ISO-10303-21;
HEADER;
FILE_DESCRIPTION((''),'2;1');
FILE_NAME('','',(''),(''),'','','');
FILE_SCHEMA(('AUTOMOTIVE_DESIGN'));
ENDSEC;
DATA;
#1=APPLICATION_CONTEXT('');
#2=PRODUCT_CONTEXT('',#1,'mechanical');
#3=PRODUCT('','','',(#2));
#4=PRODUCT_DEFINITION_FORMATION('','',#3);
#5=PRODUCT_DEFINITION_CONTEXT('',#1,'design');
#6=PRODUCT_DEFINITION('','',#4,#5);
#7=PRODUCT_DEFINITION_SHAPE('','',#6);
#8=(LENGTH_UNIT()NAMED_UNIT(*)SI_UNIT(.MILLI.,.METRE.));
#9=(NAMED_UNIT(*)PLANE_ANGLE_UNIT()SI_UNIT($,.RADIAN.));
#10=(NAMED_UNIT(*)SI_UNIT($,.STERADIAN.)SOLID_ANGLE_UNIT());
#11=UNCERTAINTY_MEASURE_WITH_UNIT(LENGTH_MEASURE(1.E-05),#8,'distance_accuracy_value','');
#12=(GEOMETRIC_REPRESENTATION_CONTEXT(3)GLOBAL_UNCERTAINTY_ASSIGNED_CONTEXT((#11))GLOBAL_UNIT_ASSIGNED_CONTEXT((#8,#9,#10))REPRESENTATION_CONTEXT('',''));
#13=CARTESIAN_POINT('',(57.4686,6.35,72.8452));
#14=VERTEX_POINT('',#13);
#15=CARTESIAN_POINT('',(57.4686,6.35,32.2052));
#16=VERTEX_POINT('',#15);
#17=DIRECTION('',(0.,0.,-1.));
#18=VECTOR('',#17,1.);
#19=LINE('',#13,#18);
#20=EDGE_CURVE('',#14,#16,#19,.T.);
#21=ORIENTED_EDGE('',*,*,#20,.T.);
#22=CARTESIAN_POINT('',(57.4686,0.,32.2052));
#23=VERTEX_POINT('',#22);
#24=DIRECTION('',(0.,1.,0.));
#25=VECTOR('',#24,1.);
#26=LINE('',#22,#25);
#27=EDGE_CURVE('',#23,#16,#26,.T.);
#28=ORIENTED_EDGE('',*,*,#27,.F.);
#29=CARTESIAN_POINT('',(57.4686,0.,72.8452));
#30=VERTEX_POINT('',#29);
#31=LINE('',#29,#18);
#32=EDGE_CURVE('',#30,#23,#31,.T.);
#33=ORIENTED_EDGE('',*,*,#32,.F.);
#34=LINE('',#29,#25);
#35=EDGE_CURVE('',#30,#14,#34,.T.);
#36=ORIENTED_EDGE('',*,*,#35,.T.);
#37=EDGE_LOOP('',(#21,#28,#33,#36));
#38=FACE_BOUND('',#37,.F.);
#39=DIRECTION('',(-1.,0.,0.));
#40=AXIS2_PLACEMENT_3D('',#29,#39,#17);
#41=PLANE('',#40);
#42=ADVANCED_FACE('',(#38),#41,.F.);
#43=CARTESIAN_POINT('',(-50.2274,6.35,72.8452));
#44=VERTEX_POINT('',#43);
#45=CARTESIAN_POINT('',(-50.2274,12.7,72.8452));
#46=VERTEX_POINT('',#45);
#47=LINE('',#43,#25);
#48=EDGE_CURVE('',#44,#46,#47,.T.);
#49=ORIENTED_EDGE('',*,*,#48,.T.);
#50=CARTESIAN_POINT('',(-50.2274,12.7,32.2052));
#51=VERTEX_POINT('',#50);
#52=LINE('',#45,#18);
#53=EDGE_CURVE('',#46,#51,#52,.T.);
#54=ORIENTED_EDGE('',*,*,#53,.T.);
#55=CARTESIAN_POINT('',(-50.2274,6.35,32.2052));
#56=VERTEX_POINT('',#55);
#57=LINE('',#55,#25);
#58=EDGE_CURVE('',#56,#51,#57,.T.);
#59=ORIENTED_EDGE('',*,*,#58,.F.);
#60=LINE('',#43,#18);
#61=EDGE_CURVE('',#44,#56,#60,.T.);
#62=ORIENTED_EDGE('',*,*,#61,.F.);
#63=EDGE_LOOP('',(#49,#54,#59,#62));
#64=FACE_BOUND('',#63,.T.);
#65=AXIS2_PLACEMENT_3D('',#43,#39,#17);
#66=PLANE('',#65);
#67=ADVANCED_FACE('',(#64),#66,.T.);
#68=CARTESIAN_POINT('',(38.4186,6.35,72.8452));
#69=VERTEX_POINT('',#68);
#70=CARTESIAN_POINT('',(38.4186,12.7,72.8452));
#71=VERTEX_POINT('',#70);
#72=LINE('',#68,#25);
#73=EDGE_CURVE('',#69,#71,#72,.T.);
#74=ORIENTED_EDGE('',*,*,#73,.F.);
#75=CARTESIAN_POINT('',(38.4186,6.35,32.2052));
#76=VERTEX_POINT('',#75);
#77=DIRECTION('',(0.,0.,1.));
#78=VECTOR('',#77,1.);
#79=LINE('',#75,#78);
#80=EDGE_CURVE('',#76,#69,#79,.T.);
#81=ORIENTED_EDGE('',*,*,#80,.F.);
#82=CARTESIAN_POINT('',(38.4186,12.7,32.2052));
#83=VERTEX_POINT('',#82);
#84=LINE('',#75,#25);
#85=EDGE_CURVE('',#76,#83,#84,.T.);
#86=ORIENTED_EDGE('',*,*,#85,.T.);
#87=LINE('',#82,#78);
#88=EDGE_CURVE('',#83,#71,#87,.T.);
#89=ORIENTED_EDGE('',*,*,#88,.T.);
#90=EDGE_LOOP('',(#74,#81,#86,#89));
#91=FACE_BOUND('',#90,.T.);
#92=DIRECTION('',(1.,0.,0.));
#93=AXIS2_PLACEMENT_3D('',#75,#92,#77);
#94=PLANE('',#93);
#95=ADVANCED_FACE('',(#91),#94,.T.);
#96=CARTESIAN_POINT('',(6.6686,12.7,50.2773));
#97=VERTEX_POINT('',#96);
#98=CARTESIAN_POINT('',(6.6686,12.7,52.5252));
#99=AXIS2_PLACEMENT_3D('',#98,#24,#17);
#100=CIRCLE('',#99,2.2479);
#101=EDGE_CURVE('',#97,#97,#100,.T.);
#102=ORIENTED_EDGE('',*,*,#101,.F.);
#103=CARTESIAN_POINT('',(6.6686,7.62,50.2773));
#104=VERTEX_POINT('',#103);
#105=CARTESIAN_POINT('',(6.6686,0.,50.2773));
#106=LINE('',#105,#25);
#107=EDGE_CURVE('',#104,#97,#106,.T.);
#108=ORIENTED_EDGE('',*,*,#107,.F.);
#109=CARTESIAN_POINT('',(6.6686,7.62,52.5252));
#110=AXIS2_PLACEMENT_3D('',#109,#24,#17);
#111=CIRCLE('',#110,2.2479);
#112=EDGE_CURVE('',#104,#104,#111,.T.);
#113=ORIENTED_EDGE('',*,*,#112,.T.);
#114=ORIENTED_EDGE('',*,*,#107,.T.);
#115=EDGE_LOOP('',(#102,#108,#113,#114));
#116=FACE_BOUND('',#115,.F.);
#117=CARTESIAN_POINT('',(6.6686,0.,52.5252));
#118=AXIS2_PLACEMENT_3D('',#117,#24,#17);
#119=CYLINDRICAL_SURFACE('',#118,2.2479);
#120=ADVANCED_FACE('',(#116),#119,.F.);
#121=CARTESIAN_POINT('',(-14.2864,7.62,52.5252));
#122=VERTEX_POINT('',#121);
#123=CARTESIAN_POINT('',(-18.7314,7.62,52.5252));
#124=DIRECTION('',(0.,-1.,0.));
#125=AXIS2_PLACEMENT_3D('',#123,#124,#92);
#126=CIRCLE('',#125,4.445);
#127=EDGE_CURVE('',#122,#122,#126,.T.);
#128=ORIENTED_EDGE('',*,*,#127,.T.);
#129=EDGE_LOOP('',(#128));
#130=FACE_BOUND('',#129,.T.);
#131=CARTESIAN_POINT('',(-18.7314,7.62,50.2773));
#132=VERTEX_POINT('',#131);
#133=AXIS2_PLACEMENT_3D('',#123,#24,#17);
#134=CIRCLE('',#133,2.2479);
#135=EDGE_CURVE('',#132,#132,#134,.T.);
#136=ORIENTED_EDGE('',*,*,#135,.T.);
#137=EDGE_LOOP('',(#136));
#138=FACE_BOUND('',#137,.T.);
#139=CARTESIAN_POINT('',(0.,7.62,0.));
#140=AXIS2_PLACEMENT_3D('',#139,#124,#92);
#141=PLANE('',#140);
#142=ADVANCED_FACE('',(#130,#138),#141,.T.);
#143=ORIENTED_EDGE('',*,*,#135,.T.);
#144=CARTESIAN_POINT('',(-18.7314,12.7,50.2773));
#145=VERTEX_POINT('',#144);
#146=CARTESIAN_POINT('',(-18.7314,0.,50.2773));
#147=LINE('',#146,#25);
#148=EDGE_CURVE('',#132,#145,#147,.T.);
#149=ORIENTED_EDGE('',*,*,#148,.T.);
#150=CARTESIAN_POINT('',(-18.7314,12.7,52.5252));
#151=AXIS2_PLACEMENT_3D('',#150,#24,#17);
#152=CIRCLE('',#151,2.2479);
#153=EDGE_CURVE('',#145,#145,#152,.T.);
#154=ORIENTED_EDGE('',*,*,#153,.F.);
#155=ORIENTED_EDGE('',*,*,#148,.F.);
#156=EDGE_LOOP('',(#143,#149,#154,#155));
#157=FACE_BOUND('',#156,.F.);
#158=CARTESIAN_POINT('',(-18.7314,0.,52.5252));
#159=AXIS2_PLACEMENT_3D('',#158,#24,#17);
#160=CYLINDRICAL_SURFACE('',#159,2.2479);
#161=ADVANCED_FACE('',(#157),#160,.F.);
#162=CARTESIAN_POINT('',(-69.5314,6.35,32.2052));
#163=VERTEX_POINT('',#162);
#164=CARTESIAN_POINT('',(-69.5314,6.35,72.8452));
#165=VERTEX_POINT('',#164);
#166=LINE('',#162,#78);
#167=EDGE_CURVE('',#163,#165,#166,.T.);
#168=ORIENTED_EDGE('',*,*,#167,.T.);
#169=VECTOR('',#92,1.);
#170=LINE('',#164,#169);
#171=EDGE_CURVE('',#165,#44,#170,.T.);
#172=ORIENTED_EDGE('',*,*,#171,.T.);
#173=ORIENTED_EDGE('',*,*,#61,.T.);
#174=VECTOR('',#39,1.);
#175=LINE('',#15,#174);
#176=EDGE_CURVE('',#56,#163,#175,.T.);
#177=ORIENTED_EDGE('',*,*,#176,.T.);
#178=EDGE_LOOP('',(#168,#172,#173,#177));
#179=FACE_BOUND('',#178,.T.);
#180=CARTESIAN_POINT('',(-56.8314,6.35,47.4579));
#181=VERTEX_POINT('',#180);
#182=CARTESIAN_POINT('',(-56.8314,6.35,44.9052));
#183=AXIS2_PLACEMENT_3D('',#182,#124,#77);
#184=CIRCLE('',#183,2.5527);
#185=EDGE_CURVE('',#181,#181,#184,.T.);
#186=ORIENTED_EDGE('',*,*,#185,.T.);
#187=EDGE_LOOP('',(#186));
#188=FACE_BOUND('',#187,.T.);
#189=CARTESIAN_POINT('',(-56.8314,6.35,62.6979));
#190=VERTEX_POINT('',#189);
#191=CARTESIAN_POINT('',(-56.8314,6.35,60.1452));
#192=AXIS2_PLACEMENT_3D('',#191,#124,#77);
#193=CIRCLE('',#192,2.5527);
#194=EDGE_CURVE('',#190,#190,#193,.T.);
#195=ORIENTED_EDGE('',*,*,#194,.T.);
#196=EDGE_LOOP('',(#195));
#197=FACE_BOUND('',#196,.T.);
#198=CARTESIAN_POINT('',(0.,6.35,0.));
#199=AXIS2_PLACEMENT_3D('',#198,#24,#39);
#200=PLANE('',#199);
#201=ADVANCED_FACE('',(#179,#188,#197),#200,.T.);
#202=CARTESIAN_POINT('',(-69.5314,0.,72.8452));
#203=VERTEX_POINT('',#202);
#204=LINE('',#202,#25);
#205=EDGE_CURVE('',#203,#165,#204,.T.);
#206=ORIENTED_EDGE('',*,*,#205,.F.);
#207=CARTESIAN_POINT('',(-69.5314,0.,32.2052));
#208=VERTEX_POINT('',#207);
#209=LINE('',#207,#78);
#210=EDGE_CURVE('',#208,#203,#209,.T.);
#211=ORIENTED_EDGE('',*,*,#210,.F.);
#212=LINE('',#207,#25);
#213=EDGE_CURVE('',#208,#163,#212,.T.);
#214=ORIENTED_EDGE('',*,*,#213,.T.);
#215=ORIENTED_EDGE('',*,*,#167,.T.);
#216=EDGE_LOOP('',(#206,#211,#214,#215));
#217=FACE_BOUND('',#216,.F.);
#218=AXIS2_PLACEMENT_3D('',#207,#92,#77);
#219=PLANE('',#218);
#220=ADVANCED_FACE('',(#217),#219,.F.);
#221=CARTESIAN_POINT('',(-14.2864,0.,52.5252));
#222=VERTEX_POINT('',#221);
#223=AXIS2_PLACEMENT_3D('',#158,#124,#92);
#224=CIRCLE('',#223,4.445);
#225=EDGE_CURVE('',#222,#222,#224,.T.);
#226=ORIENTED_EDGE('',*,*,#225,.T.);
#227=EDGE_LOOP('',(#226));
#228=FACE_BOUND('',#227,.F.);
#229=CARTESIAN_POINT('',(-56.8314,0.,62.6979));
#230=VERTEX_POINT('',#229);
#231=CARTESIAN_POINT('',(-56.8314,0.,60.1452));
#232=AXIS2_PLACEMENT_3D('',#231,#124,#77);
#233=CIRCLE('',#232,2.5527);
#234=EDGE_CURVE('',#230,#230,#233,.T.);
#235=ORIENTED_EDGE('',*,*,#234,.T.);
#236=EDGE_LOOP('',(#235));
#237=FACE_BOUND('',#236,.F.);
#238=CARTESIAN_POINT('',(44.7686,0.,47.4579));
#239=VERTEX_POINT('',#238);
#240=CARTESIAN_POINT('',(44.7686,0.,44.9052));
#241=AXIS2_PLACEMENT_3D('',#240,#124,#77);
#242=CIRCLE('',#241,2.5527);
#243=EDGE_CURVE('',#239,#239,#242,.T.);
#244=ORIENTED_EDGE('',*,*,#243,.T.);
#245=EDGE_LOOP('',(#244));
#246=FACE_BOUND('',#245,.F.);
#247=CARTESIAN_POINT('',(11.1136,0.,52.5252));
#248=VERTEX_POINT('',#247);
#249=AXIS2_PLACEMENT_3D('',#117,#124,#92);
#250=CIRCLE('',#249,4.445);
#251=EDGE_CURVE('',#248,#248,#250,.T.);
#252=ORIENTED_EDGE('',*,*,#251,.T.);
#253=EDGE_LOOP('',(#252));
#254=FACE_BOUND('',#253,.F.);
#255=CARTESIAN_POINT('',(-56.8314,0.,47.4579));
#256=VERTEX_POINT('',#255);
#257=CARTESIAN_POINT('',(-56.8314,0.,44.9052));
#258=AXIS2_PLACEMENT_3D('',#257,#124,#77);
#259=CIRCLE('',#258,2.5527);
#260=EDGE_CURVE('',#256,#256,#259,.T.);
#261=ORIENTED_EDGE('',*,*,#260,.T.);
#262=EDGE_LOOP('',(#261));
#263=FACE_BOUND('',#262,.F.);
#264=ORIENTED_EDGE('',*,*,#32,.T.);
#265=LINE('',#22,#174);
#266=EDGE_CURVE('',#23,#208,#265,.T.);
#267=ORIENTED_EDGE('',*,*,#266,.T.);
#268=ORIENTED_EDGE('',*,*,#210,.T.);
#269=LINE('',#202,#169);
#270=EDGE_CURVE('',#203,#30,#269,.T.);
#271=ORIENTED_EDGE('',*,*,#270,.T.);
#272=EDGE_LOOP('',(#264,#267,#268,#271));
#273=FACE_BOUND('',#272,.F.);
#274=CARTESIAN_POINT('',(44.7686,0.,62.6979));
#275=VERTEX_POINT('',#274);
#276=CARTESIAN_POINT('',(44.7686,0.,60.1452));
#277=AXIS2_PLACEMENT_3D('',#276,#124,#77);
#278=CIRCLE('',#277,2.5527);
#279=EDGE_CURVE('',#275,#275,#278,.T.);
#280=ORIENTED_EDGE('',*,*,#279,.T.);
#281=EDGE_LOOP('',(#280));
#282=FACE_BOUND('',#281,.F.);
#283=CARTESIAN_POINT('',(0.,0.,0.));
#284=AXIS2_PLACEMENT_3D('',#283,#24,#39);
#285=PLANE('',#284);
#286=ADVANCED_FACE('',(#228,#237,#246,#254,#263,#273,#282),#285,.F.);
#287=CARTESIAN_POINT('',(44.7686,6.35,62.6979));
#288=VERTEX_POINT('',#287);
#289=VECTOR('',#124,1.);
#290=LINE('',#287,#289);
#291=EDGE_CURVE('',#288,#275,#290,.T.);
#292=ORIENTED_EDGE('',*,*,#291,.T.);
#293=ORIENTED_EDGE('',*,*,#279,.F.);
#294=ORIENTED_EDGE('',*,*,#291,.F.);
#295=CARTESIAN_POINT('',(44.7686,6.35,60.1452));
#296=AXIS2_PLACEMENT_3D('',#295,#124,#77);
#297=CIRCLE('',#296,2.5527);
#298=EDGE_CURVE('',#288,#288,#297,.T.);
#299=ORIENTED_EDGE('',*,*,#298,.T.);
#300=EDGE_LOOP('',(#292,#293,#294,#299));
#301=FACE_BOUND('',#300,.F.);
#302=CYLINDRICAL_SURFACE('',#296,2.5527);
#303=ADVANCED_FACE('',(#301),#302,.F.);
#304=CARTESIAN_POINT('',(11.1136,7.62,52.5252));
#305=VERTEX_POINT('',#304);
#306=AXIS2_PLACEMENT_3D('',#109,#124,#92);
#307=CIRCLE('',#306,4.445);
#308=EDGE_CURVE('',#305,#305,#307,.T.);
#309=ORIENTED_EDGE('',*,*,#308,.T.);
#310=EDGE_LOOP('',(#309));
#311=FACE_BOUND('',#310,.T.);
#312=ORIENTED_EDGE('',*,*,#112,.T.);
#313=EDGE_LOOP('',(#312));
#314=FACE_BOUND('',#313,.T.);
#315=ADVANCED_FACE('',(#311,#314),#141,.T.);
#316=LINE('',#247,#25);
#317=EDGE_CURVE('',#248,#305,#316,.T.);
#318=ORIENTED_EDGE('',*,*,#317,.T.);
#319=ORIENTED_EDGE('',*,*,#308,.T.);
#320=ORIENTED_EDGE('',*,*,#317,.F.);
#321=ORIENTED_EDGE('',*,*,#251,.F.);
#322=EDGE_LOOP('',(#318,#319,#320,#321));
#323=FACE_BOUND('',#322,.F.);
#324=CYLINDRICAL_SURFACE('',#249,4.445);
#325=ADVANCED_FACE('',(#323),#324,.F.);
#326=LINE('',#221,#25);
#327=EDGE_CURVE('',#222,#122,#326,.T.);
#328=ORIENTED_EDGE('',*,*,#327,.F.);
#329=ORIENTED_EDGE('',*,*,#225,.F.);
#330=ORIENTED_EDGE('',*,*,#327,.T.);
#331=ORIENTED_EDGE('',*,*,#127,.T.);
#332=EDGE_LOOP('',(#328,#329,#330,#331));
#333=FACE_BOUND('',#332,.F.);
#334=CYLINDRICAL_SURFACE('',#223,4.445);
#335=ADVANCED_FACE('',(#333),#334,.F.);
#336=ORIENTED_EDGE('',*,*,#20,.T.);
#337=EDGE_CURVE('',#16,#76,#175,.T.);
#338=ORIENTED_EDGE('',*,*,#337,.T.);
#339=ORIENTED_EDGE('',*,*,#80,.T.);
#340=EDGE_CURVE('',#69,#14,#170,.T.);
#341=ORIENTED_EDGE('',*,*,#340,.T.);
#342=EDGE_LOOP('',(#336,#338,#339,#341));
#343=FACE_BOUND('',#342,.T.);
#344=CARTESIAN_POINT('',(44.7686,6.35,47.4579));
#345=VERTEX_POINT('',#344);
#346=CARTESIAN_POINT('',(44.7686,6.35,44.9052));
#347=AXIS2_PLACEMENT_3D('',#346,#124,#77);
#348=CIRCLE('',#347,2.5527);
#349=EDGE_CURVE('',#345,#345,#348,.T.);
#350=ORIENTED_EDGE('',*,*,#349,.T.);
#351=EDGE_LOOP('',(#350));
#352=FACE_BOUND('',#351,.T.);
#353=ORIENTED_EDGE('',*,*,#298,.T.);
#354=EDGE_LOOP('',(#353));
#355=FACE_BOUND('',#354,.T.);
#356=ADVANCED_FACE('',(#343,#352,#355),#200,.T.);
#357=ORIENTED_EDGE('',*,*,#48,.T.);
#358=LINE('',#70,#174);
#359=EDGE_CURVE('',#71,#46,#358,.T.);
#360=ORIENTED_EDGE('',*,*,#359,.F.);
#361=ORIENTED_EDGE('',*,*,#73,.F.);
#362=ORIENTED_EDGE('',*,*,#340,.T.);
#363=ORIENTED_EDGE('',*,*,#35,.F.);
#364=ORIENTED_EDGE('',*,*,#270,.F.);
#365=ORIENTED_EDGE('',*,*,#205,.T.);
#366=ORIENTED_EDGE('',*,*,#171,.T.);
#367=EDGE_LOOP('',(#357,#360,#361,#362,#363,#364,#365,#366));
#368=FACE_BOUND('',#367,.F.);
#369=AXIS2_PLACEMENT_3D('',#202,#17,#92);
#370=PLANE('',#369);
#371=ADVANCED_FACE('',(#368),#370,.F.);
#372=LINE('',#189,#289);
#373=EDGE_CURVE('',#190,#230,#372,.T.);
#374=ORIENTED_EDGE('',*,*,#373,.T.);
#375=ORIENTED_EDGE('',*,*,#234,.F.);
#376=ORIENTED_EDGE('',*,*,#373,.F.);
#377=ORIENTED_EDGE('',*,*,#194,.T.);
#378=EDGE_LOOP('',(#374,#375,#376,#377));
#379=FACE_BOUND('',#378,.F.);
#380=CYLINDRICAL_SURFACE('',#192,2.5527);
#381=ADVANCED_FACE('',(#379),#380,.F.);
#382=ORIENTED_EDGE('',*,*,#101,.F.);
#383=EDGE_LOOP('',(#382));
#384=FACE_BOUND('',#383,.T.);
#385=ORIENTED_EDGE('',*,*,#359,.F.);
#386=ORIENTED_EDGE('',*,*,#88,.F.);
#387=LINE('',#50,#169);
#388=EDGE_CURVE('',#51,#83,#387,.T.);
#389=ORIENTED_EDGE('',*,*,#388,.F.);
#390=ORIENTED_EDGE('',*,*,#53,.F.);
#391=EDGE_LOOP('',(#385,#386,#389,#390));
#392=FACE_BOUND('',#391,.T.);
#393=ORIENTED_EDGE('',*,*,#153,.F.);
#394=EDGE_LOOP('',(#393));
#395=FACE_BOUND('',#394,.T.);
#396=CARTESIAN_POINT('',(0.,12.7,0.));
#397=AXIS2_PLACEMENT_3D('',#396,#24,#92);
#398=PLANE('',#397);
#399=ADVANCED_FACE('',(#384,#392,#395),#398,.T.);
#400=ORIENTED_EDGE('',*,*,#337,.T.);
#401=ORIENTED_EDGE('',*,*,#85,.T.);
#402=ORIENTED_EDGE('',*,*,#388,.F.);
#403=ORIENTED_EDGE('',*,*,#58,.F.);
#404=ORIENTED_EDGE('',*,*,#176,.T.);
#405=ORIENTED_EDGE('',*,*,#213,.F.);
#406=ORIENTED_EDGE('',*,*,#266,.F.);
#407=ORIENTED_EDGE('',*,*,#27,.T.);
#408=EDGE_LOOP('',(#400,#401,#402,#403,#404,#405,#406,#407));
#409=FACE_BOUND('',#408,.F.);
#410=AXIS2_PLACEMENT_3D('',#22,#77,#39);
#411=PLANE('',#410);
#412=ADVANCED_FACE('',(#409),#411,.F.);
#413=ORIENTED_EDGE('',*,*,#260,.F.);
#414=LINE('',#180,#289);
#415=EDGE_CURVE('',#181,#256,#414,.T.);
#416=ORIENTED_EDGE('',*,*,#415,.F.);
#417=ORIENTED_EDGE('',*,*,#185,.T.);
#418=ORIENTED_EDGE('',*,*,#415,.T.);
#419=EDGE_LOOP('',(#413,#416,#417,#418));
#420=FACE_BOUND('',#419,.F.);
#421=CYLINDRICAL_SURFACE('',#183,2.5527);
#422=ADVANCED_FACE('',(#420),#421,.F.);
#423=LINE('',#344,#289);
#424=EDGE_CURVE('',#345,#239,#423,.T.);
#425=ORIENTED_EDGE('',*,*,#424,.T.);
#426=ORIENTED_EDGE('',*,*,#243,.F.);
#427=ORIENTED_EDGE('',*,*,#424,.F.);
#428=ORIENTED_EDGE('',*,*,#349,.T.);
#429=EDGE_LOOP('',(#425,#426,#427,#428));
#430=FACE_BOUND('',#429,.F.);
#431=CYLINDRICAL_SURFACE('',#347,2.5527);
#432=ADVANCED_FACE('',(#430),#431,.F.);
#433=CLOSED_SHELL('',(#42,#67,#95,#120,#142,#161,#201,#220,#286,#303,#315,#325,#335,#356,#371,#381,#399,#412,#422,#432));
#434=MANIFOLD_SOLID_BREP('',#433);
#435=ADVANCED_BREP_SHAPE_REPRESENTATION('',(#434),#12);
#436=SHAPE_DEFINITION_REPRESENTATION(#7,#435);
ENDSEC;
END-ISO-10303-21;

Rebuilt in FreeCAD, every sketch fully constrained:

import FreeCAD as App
import Part
import Sketcher

V = App.Vector
Q = App.Units.Quantity

doc = App.newDocument("Part")
body = doc.addObject("PartDesign::Body", "Body")

sketch1 = body.newObject("Sketcher::SketchObject", "Sketch")
sketch1.AttachmentSupport = (doc.getObject("XZ_Plane"), [""])
sketch1.MapMode = "FlatFace"
sketch1.addGeometry([
    Part.LineSegment(V(-70, 32, 0), V(-70, 73, 0)),
    Part.LineSegment(V(-70, 73, 0), V(57, 73, 0)),
    Part.LineSegment(V(57, 73, 0), V(57, 32, 0)),
    Part.LineSegment(V(57, 32, 0), V(-70, 32, 0)),
], False)
sketch1.addConstraint([
    Sketcher.Constraint("Coincident", 0, 2, 1, 1),
    Sketcher.Constraint("Coincident", 1, 2, 2, 1),
    Sketcher.Constraint("Coincident", 2, 2, 3, 1),
    Sketcher.Constraint("Coincident", 3, 2, 0, 1),
    Sketcher.Constraint("Vertical", 0),
    Sketcher.Constraint("Horizontal", 1),
    Sketcher.Constraint("Vertical", 2),
    Sketcher.Constraint("Horizontal", 3),
    Sketcher.Constraint("DistanceX", 1, 1, 1, 2, Q("5 in")),
    Sketcher.Constraint("DistanceY", 0, 1, 0, 2, Q("1.6 in")),
    Sketcher.Constraint("DistanceX", 0, 2, -1, 1, 69.5314),
    Sketcher.Constraint("DistanceY", -1, 1, 0, 2, 72.8452),
])
pad1 = body.newObject("PartDesign::Pad", "Pad")
pad1.Profile = sketch1
pad1.Length = Q("0.25 in")
pad1.Reversed = True

sketch2 = body.newObject("Sketcher::SketchObject", "Sketch001")
sketch2.AttachmentSupport = (doc.getObject("XZ_Plane"), [""])
sketch2.MapMode = "FlatFace"
sketch2.AttachmentOffset = App.Placement(V(0, 0, -0.25 * 25.4), App.Rotation())
sketch2.addGeometry([
    Part.LineSegment(V(38, 32, 0), V(-50, 32, 0)),
    Part.LineSegment(V(-50, 32, 0), V(-50, 73, 0)),
    Part.LineSegment(V(-50, 73, 0), V(38, 73, 0)),
    Part.LineSegment(V(38, 73, 0), V(38, 32, 0)),
], False)
sketch2.addConstraint([
    Sketcher.Constraint("Coincident", 0, 2, 1, 1),
    Sketcher.Constraint("Coincident", 1, 2, 2, 1),
    Sketcher.Constraint("Coincident", 2, 2, 3, 1),
    Sketcher.Constraint("Coincident", 3, 2, 0, 1),
    Sketcher.Constraint("Horizontal", 0),
    Sketcher.Constraint("Vertical", 1),
    Sketcher.Constraint("Horizontal", 2),
    Sketcher.Constraint("Vertical", 3),
    Sketcher.Constraint("DistanceY", 1, 1, 1, 2, Q("1.6 in")),
    Sketcher.Constraint("DistanceX", 0, 2, 0, 1, Q("3.49 in")),
    Sketcher.Constraint("DistanceX", 0, 2, -1, 1, 50.2274),
    Sketcher.Constraint("DistanceY", -1, 1, 0, 2, 32.2052),
])
pad2 = body.newObject("PartDesign::Pad", "Pad001")
pad2.Profile = sketch2
pad2.Length = Q("0.25 in")
pad2.Reversed = True

sketch3 = body.newObject("Sketcher::SketchObject", "Sketch002")
sketch3.AttachmentSupport = (doc.getObject("XZ_Plane"), [""])
sketch3.MapMode = "FlatFace"
sketch3.AttachmentOffset = App.Placement(V(0, 0, -0.25 * 25.4), App.Rotation())
sketch3.addGeometry([
    Part.Circle(V(-56.8, 44.9, 0), V(0, 0, 1), 2.6),
    Part.Circle(V(-56.8, 60.1, 0), V(0, 0, 1), 2.6),
    Part.Circle(V(44.8, 44.9, 0), V(0, 0, 1), 2.6),
    Part.Circle(V(44.8, 60.1, 0), V(0, 0, 1), 2.6),
], False)
sketch3.addConstraint([
    Sketcher.Constraint("Equal", 0, 1),
    Sketcher.Constraint("Equal", 1, 2),
    Sketcher.Constraint("Equal", 2, 3),
    Sketcher.Constraint("Horizontal", 0, 3, 2, 3),
    Sketcher.Constraint("Horizontal", 1, 3, 3, 3),
    Sketcher.Constraint("Vertical", 0, 3, 1, 3),
    Sketcher.Constraint("Vertical", 2, 3, 3, 3),
    Sketcher.Constraint("Diameter", 0, Q("0.201 in")),
    Sketcher.Constraint("DistanceX", 0, 3, 2, 3, Q("4 in")),
    Sketcher.Constraint("DistanceY", 0, 3, 1, 3, Q("0.6 in")),
    Sketcher.Constraint("DistanceX", 0, 3, -1, 1, 56.8314),
    Sketcher.Constraint("DistanceY", -1, 1, 0, 3, 44.9052),
])
doc.recompute()
hole = body.newObject("PartDesign::Hole", "Hole")
hole.Profile = sketch3
hole.ThreadType = "None"
hole.Diameter = Q("0.201 in")
hole.DepthType = "Dimension"
hole.Depth = Q("1 in")
hole.DrillPoint = "Angled"
hole.DrillPointAngle = 118
hole.Reversed = True

sketch4 = body.newObject("Sketcher::SketchObject", "Sketch003")
sketch4.AttachmentSupport = (doc.getObject("XZ_Plane"), [""])
sketch4.MapMode = "FlatFace"
sketch4.addGeometry([
    Part.Circle(V(-18.7, 52.5, 0), V(0, 0, 1), 4.4),
    Part.Circle(V(6.7, 52.5, 0), V(0, 0, 1), 4.4),
], False)
sketch4.addConstraint([
    Sketcher.Constraint("Equal", 0, 1),
    Sketcher.Constraint("Horizontal", 0, 3, 1, 3),
    Sketcher.Constraint("Diameter", 0, Q("0.35 in")),
    Sketcher.Constraint("DistanceX", 0, 3, 1, 3, Q("1 in")),
    Sketcher.Constraint("DistanceX", 0, 3, -1, 1, 18.7314),
    Sketcher.Constraint("DistanceY", -1, 1, 0, 3, 52.5252),
])
pocket1 = body.newObject("PartDesign::Pocket", "Pocket")
pocket1.Profile = sketch4
pocket1.Length = Q("0.3 in")

sketch5 = body.newObject("Sketcher::SketchObject", "Sketch004")
sketch5.AttachmentSupport = (doc.getObject("XZ_Plane"), [""])
sketch5.MapMode = "FlatFace"
sketch5.addGeometry([
    Part.Circle(V(-18.7, 52.5, 0), V(0, 0, 1), 2.2),
    Part.Circle(V(6.7, 52.5, 0), V(0, 0, 1), 2.2),
], False)
sketch5.addConstraint([
    Sketcher.Constraint("Equal", 0, 1),
    Sketcher.Constraint("Horizontal", 0, 3, 1, 3),
    Sketcher.Constraint("Diameter", 0, Q("0.177 in")),
    Sketcher.Constraint("DistanceX", 0, 3, 1, 3, Q("1 in")),
    Sketcher.Constraint("DistanceX", 0, 3, -1, 1, 18.7314),
    Sketcher.Constraint("DistanceY", -1, 1, 0, 3, 52.5252),
])
doc.recompute()
hole2 = body.newObject("PartDesign::Hole", "Hole001")
hole2.Profile = sketch5
hole2.ThreadType = "None"
hole2.Diameter = Q("0.177 in")
hole2.DepthType = "Dimension"
hole2.Depth = Q("1 in")
hole2.DrillPoint = "Angled"
hole2.DrillPointAngle = 118

doc.recompute()
